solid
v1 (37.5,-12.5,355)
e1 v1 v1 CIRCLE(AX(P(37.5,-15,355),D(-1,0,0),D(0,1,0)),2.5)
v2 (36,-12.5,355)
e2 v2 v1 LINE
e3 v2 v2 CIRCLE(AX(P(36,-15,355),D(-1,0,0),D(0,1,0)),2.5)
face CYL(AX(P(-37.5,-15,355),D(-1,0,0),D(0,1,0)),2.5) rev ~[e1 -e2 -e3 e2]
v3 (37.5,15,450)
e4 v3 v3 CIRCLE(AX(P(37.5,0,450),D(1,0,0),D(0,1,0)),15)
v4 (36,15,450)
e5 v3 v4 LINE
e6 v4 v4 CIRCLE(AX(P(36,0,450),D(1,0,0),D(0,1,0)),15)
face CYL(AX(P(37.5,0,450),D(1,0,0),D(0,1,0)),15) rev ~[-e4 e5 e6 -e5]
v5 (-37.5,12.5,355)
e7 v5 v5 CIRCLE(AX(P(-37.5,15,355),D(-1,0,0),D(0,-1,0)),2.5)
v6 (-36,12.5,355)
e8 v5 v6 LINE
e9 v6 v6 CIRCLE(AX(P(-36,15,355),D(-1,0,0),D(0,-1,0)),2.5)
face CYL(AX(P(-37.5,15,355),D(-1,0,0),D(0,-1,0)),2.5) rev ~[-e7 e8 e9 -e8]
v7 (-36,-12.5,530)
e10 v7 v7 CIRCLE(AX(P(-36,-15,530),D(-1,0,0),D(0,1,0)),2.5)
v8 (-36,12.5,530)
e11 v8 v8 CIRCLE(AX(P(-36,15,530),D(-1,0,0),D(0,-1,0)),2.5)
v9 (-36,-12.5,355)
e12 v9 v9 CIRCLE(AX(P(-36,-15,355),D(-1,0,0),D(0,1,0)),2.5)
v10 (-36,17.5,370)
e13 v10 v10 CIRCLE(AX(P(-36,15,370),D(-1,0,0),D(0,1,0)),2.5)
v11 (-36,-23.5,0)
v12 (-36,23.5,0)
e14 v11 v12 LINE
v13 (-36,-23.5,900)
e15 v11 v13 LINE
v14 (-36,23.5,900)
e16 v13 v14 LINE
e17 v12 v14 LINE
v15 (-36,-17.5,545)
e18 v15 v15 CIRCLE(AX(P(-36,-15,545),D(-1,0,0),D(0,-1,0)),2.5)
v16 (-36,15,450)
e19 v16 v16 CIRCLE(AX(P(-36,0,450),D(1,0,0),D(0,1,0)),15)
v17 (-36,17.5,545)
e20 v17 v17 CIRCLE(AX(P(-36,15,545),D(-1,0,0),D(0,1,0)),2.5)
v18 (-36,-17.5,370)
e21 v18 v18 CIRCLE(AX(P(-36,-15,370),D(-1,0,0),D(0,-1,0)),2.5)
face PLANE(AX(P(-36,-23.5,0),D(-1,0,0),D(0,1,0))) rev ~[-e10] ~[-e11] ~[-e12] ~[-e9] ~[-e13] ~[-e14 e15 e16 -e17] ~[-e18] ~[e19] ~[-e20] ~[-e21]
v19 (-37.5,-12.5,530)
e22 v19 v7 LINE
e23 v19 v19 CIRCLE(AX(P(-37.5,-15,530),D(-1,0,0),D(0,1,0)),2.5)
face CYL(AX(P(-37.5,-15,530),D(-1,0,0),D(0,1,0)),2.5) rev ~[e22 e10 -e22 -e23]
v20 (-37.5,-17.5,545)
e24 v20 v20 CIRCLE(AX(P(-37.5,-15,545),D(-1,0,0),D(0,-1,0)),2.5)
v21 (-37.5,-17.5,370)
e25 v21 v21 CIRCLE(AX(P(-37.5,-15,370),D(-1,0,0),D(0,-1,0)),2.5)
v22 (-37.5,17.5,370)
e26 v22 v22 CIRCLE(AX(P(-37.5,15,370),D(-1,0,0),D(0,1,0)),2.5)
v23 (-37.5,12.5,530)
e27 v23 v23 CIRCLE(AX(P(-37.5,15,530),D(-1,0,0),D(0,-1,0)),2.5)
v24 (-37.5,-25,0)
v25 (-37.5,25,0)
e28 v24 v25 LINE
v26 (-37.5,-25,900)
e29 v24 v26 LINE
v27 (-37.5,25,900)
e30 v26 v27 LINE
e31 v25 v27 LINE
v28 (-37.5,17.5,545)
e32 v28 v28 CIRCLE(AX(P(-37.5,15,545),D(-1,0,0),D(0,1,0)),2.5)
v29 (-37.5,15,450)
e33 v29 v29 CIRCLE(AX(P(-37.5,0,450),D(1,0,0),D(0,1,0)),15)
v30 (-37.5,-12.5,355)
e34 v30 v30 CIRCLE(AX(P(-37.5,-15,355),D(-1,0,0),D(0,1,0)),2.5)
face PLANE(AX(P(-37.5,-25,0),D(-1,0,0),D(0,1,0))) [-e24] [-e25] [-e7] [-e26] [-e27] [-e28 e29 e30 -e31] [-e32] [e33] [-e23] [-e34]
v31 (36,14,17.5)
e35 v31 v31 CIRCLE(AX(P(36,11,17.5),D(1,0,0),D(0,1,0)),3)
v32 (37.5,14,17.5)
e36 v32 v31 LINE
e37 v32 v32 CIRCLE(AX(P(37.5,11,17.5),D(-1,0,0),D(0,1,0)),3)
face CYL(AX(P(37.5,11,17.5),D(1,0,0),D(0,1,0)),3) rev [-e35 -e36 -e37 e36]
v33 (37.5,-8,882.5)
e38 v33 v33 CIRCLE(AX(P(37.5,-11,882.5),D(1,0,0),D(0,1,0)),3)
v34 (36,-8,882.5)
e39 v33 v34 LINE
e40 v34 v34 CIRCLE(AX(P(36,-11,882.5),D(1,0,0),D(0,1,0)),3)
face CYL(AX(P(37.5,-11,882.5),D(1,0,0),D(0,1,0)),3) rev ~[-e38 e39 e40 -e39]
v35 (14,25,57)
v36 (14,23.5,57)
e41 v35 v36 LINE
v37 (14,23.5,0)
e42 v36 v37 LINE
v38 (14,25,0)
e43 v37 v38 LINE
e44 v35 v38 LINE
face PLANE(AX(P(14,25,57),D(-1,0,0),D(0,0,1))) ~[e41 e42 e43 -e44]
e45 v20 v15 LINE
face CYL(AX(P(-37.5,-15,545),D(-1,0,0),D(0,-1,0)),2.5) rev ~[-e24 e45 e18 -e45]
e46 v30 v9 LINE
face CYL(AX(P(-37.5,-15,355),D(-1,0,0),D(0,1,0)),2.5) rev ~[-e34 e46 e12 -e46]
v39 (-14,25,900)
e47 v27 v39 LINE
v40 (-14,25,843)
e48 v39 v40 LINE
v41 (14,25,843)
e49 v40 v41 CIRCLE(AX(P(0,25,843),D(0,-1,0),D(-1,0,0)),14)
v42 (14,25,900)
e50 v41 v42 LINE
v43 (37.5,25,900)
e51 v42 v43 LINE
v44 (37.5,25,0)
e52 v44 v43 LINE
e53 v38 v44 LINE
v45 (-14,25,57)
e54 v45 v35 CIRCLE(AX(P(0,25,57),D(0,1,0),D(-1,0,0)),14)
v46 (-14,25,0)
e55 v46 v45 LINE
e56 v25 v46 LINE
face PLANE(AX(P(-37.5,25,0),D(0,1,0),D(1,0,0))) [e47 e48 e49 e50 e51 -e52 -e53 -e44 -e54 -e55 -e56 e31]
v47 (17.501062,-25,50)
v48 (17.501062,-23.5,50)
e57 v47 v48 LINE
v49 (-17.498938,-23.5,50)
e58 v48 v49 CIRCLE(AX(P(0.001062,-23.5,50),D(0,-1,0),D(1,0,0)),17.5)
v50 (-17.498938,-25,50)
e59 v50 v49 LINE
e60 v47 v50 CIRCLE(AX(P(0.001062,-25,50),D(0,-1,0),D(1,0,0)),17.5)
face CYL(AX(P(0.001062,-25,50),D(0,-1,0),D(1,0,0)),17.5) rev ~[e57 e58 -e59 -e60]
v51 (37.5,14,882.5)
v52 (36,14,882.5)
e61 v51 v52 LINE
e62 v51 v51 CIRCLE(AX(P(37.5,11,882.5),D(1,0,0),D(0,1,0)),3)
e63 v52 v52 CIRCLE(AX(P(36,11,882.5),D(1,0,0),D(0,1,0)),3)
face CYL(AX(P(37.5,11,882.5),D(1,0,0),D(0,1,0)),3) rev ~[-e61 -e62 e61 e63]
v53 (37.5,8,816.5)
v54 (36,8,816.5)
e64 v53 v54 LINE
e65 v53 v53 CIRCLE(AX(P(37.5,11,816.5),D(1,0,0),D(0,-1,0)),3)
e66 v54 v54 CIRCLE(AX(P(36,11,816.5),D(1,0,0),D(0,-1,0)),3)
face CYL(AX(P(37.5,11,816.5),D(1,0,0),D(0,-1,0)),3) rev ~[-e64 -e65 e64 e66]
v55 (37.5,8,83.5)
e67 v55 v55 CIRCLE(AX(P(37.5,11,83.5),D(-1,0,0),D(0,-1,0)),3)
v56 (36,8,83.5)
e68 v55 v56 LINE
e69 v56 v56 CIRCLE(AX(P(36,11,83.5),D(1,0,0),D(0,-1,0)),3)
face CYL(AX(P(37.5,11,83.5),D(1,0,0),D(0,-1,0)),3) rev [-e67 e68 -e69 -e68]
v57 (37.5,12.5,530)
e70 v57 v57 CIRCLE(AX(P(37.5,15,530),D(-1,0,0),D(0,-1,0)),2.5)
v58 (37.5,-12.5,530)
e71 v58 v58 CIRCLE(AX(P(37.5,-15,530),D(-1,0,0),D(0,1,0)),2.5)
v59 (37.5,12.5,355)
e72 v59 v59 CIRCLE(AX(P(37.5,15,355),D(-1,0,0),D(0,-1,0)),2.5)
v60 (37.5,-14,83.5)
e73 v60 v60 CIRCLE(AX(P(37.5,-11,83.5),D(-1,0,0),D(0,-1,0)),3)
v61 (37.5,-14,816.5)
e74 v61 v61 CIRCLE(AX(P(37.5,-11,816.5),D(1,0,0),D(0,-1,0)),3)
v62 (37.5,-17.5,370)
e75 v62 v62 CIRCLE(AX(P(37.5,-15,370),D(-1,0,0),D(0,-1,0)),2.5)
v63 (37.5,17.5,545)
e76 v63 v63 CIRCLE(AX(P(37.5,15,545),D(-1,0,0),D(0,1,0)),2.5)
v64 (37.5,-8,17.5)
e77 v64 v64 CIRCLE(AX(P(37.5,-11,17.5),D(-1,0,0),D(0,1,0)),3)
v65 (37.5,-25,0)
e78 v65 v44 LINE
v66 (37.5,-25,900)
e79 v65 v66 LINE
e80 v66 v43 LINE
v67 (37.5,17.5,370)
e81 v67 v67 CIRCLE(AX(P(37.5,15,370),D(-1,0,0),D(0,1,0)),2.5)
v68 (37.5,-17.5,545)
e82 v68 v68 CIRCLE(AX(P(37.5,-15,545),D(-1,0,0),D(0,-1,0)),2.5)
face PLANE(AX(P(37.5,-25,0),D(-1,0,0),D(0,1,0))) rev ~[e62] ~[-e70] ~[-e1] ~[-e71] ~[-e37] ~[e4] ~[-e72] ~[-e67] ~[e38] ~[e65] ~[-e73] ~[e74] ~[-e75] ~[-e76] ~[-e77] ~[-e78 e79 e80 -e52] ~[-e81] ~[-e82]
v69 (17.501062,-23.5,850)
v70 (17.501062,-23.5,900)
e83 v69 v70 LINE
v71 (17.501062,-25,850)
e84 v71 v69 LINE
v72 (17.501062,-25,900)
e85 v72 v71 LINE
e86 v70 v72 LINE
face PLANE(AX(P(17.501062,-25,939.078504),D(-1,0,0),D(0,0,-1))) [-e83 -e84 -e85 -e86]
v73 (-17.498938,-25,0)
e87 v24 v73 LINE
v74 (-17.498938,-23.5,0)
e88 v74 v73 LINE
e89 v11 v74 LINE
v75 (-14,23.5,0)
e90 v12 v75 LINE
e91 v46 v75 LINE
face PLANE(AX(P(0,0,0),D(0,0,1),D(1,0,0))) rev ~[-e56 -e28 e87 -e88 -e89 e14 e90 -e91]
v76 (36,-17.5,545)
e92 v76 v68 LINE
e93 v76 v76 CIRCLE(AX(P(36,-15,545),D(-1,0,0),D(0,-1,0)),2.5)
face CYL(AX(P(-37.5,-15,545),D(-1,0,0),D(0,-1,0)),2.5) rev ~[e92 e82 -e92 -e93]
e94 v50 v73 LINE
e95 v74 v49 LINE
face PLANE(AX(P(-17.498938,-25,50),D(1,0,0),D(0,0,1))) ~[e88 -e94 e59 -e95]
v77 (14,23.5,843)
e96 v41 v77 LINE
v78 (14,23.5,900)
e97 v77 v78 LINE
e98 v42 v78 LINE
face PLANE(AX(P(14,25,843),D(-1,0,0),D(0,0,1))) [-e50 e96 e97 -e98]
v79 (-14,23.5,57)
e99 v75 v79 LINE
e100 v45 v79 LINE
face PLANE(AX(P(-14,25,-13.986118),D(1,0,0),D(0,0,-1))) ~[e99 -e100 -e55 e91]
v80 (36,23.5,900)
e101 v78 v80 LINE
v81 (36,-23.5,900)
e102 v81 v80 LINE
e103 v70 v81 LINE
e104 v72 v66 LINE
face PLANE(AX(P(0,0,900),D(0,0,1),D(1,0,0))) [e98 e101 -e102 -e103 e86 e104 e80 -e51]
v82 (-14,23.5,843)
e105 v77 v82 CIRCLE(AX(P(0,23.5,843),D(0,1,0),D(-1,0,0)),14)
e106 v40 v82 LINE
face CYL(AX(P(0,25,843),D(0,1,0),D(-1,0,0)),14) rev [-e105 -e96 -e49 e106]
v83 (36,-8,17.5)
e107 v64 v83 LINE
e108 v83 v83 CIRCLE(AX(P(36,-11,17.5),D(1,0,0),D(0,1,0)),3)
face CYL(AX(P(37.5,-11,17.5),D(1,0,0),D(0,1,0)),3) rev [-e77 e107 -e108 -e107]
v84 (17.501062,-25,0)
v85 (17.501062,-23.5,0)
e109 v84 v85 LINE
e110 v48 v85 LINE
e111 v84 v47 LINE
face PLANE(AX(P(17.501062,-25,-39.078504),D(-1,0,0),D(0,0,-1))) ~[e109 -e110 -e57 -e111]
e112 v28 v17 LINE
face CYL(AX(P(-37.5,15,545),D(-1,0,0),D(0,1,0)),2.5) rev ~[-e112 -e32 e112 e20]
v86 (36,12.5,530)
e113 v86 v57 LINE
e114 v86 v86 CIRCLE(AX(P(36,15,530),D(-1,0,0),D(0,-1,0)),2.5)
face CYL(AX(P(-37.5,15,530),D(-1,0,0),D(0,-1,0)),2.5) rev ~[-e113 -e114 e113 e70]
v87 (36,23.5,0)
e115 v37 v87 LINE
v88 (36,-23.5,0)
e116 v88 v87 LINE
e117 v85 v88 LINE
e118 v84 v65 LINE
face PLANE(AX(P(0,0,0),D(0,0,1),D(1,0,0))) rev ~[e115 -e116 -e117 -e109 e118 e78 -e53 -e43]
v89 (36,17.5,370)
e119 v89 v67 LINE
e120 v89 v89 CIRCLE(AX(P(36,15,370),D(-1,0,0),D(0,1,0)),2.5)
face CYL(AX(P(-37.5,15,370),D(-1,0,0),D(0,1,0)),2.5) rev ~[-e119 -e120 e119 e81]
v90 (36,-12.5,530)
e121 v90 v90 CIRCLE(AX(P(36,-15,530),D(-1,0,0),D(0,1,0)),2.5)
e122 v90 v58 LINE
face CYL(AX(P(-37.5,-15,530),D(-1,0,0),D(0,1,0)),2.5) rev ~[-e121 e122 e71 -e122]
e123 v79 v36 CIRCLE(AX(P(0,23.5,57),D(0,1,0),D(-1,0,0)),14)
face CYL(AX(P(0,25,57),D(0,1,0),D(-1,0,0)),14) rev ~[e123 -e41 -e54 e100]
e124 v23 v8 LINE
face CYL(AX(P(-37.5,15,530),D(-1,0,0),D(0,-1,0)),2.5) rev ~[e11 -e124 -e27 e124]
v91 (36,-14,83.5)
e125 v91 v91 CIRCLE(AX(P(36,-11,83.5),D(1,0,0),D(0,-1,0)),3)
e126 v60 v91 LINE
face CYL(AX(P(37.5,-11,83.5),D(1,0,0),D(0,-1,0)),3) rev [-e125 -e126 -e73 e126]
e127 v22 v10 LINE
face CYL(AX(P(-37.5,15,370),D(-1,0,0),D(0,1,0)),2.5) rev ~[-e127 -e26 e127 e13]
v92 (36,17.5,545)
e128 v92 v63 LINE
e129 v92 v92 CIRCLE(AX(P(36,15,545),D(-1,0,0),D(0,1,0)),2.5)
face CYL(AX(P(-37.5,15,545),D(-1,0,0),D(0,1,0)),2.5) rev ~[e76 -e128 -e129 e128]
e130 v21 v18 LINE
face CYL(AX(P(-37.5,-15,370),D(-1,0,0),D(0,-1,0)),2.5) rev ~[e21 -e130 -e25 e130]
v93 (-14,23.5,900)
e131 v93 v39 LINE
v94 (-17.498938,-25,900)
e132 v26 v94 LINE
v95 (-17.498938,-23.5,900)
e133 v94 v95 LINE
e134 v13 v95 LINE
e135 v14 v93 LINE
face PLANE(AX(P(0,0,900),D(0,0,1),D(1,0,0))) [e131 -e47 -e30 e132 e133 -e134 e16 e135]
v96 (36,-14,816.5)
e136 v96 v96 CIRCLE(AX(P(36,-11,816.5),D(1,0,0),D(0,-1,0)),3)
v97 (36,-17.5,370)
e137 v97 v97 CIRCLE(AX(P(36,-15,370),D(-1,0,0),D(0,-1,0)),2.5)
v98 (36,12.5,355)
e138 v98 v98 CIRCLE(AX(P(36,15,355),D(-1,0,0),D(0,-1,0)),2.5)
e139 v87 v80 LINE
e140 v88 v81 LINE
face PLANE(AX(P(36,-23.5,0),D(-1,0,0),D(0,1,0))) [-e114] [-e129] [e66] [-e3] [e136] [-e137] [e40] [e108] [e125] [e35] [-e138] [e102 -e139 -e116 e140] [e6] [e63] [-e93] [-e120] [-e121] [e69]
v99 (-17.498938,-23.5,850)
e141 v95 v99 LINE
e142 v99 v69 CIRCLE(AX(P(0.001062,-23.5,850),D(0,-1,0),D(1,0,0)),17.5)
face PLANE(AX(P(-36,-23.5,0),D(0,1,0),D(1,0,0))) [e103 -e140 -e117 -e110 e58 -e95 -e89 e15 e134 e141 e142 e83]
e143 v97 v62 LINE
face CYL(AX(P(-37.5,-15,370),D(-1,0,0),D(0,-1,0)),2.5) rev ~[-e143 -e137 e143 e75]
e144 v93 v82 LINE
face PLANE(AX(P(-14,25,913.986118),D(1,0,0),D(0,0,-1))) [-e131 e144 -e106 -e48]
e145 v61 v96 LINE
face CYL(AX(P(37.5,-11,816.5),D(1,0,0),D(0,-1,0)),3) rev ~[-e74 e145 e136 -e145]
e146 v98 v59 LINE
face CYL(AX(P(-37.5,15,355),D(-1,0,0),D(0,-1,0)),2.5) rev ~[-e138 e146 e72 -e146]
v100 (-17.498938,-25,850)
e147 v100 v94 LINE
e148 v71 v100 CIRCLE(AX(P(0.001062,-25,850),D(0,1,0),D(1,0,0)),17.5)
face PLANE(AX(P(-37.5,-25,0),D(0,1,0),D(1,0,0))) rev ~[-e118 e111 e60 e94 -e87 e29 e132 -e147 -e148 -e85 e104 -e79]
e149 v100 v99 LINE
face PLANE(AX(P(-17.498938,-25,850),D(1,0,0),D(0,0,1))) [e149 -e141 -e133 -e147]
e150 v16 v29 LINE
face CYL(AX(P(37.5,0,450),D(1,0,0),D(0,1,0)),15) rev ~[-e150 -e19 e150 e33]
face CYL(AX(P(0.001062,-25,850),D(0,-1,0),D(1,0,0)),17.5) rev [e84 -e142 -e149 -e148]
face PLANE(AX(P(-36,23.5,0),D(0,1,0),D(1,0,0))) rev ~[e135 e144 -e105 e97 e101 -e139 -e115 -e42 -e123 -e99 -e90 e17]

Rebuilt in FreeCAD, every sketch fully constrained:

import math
import FreeCAD as App
import Part
import Sketcher
Q = App.Units.Quantity

doc = App.newDocument("Part")
body = doc.addObject("PartDesign::Body", "Body")

# Sketch on XY plane
sketch1 = body.newObject("Sketcher::SketchObject", "Sketch")
sketch1.AttachmentSupport = (doc.getObject("XY_Plane"), [""])
sketch1.MapMode = "FlatFace"
sketch1.addGeometry([
    Part.LineSegment(App.Vector(-38, 25, 0), App.Vector(-38, -25, 0)),  # 0
    Part.LineSegment(App.Vector(-38, -25, 0), App.Vector(38, -25, 0)),  # 1
    Part.LineSegment(App.Vector(38, -25, 0), App.Vector(38, 25, 0)),  # 2
    Part.LineSegment(App.Vector(38, 25, 0), App.Vector(-38, 25, 0)),  # 3
    Part.LineSegment(App.Vector(36, -24, 0), App.Vector(-36, -24, 0)),  # 4
    Part.LineSegment(App.Vector(-36, -24, 0), App.Vector(-36, 24, 0)),  # 5
    Part.LineSegment(App.Vector(-36, 24, 0), App.Vector(36, 24, 0)),  # 6
    Part.LineSegment(App.Vector(36, 24, 0), App.Vector(36, -24, 0)),  # 7
], False)
sketch1.addConstraint([
    Sketcher.Constraint("Coincident", 0, 2, 1, 1),
    Sketcher.Constraint("Coincident", 1, 2, 2, 1),
    Sketcher.Constraint("Coincident", 2, 2, 3, 1),
    Sketcher.Constraint("Coincident", 3, 2, 0, 1),
    Sketcher.Constraint("Coincident", 4, 2, 5, 1),
    Sketcher.Constraint("Coincident", 5, 2, 6, 1),
    Sketcher.Constraint("Coincident", 6, 2, 7, 1),
    Sketcher.Constraint("Coincident", 7, 2, 4, 1),
    Sketcher.Constraint("Vertical", 0),
    Sketcher.Constraint("Horizontal", 1),
    Sketcher.Constraint("Vertical", 2),
    Sketcher.Constraint("Horizontal", 3),
    Sketcher.Constraint("Horizontal", 4),
    Sketcher.Constraint("Vertical", 5),
    Sketcher.Constraint("Horizontal", 6),
    Sketcher.Constraint("Vertical", 7),
    Sketcher.Constraint("Symmetric", 0, 2, 2, 2, -1, 1),
    Sketcher.Constraint("Symmetric", 4, 2, 6, 2, -1, 1),
    Sketcher.Constraint("DistanceX", 1, 1, 1, 2, Q("75 mm")),
    Sketcher.Constraint("DistanceX", 4, 2, 4, 1, Q("72 mm")),
    Sketcher.Constraint("DistanceY", 0, 2, 0, 1, Q("50 mm")),
    Sketcher.Constraint("DistanceY", 5, 1, 5, 2, Q("47 mm")),
])
pad1 = body.newObject("PartDesign::Pad", "Pad")
pad1.Profile = sketch1
pad1.Length = 900

# Sketch on YZ plane
sketch2 = body.newObject("Sketcher::SketchObject", "Sketch001")
sketch2.AttachmentSupport = (doc.getObject("YZ_Plane"), [""])
sketch2.MapMode = "FlatFace"
sketch2.AttachmentOffset = App.Placement(App.Vector(0, 0, 37.5), App.Rotation())
sketch2.addGeometry(Part.Circle(App.Vector(0, 450, 0), App.Vector(0, 0, 1), 15), False)
sketch2.addConstraint([
    Sketcher.Constraint("PointOnObject", 0, 3, -2),
    Sketcher.Constraint("Diameter", 0, Q("30 mm")),
    Sketcher.Constraint("DistanceY", -1, 1, 0, 3, Q("450 mm")),
])
pocket1 = body.newObject("PartDesign::Pocket", "Pocket")
pocket1.Profile = sketch2
pocket1.Length = 59

# Sketch on XZ plane
sketch3 = body.newObject("Sketcher::SketchObject", "Sketch002")
sketch3.AttachmentSupport = (doc.getObject("XZ_Plane"), [""])
sketch3.MapMode = "FlatFace"
sketch3.AttachmentOffset = App.Placement(App.Vector(0, 0, -25), App.Rotation())
sketch3.addGeometry([
    Part.LineSegment(App.Vector(14, 914, 0), App.Vector(14, 843, 0)),
    Part.ArcOfCircle(Part.Circle(App.Vector(0, 843, 0), App.Vector(0, 0, 1), 14), math.radians(180), math.radians(360)),
    Part.LineSegment(App.Vector(-14, 843, 0), App.Vector(-14, 914, 0)),
    Part.ArcOfCircle(Part.Circle(App.Vector(0, 914, 0), App.Vector(0, 0, 1), 14), math.radians(0), math.radians(180)),
], False)
sketch3.addConstraint([
    Sketcher.Constraint("Tangent", 0, 2, 1, 2),
    Sketcher.Constraint("Tangent", 1, 1, 2, 1),
    Sketcher.Constraint("Tangent", 2, 2, 3, 2),
    Sketcher.Constraint("Tangent", 3, 1, 0, 1),
    Sketcher.Constraint("Vertical", 0),
    Sketcher.Constraint("Vertical", 2),
    Sketcher.Constraint("PointOnObject", 1, 3, -2),
    Sketcher.Constraint("Radius", 1, Q("14 mm")),
    Sketcher.Constraint("DistanceY", -1, 1, 1, 3, Q("843 mm")),
    Sketcher.Constraint("DistanceY", 0, 2, 0, 1, Q("70.986118 mm")),
])
pocket2 = body.newObject("PartDesign::Pocket", "Pocket001")
pocket2.Profile = sketch3
pocket2.Length = 10
pocket2.Reversed = True

# Sketch on XZ plane
sketch4 = body.newObject("Sketcher::SketchObject", "Sketch003")
sketch4.AttachmentSupport = (doc.getObject("XZ_Plane"), [""])
sketch4.MapMode = "FlatFace"
sketch4.AttachmentOffset = App.Placement(App.Vector(0, 0, 25), App.Rotation())
sketch4.addGeometry([
    Part.LineSegment(App.Vector(-17, 939, 0), App.Vector(-17, 850, 0)),
    Part.ArcOfCircle(Part.Circle(App.Vector(0, 850, 0), App.Vector(0, 0, 1), 18), math.radians(180), math.radians(360)),
    Part.LineSegment(App.Vector(18, 850, 0), App.Vector(18, 939, 0)),
    Part.ArcOfCircle(Part.Circle(App.Vector(0, 939, 0), App.Vector(0, 0, 1), 18), math.radians(0), math.radians(180)),
], False)
sketch4.addConstraint([
    Sketcher.Constraint("Tangent", 0, 2, 1, 1),
    Sketcher.Constraint("Tangent", 1, 2, 2, 1),
    Sketcher.Constraint("Tangent", 2, 2, 3, 1),
    Sketcher.Constraint("Tangent", 3, 2, 0, 1),
    Sketcher.Constraint("Vertical", 0),
    Sketcher.Constraint("Vertical", 2),
    Sketcher.Constraint("Radius", 1, Q("17.5 mm")),
    Sketcher.Constraint("DistanceY", -1, 1, 1, 3, Q("850 mm")),
    Sketcher.Constraint("DistanceY", 0, 2, 0, 1, Q("89.078504 mm")),
    Sketcher.Constraint("DistanceX", -1, 1, 1, 3, Q("0.001062 mm")),
])
pocket3 = body.newObject("PartDesign::Pocket", "Pocket002")
pocket3.Profile = sketch4
pocket3.Length = 10

# Sketch on YZ plane
sketch5 = body.newObject("Sketcher::SketchObject", "Sketch004")
sketch5.AttachmentSupport = (doc.getObject("YZ_Plane"), [""])
sketch5.MapMode = "FlatFace"
sketch5.AttachmentOffset = App.Placement(App.Vector(0, 0, 37.5), App.Rotation())
sketch5.addGeometry([
    Part.Circle(App.Vector(11, 882.5, 0), App.Vector(0, 0, 1), 3),
    Part.Circle(App.Vector(-11, 882.5, 0), App.Vector(0, 0, 1), 3),
    Part.Circle(App.Vector(-11, 816.5, 0), App.Vector(0, 0, 1), 3),
    Part.Circle(App.Vector(11, 816.5, 0), App.Vector(0, 0, 1), 3),
], False)
sketch5.addConstraint([
    Sketcher.Constraint("Equal", 0, 1),
    Sketcher.Constraint("Equal", 1, 2),
    Sketcher.Constraint("Equal", 2, 3),
    Sketcher.Constraint("Symmetric", 0, 3, 1, 3, -2),
    Sketcher.Constraint("Symmetric", 2, 3, 3, 3, -2),
    Sketcher.Constraint("Vertical", 1, 3, 2, 3),
    Sketcher.Constraint("Diameter", 0, Q("6 mm")),
    Sketcher.Constraint("DistanceX", -1, 1, 0, 3, Q("11 mm")),
    Sketcher.Constraint("DistanceY", 2, 3, 1, 3, Q("66 mm")),
    Sketcher.Constraint("DistanceY", -1, 1, 0, 3, Q("882.5 mm")),
])
pocket4 = body.newObject("PartDesign::Pocket", "Pocket003")
pocket4.Profile = sketch5
pocket4.Length = 55
doc.recompute()

datumplane = body.newObject("PartDesign::Plane", "DatumPlane")
datumplane.AttachmentSupport = (doc.getObject("XY_Plane"), [""])
datumplane.MapMode = "FlatFace"
datumplane.AttachmentOffset = App.Placement(App.Vector(0, 0, 450), App.Rotation())
mirrored = body.newObject("PartDesign::Mirrored", "Mirrored")
mirrored.Originals = [pocket2, pocket3, pocket4]
mirrored.MirrorPlane = (datumplane, [""])
body.Tip = mirrored

# Sketch on YZ plane
sketch6 = body.newObject("Sketcher::SketchObject", "Sketch005")
sketch6.AttachmentSupport = (doc.getObject("YZ_Plane"), [""])
sketch6.MapMode = "FlatFace"
sketch6.AttachmentOffset = App.Placement(App.Vector(0, 0, -37.5), App.Rotation())
sketch6.addGeometry([
    Part.Circle(App.Vector(15, 355, 0), App.Vector(0, 0, 1), 2.5),  # 0
    Part.Circle(App.Vector(15, 370, 0), App.Vector(0, 0, 1), 2.5),  # 1
    Part.Circle(App.Vector(-15, 370, 0), App.Vector(0, 0, 1), 2.5),  # 2
    Part.Circle(App.Vector(-15, 355, 0), App.Vector(0, 0, 1), 2.5),  # 3
    Part.Circle(App.Vector(-15, 545, 0), App.Vector(0, 0, 1), 2.5),  # 4
    Part.Circle(App.Vector(-15, 530, 0), App.Vector(0, 0, 1), 2.5),  # 5
    Part.Circle(App.Vector(15, 530, 0), App.Vector(0, 0, 1), 2.5),  # 6
    Part.Circle(App.Vector(15, 545, 0), App.Vector(0, 0, 1), 2.5),  # 7
], False)
sketch6.addConstraint([
    Sketcher.Constraint("Equal", 0, 1),
    Sketcher.Constraint("Equal", 1, 2),
    Sketcher.Constraint("Equal", 2, 3),
    Sketcher.Constraint("Equal", 3, 4),
    Sketcher.Constraint("Equal", 4, 5),
    Sketcher.Constraint("Equal", 5, 6),
    Sketcher.Constraint("Equal", 6, 7),
    Sketcher.Constraint("Symmetric", 1, 3, 2, 3, -2),
    Sketcher.Constraint("Symmetric", 0, 3, 3, 3, -2),
    Sketcher.Constraint("Symmetric", 5, 3, 6, 3, -2),
    Sketcher.Constraint("Symmetric", 4, 3, 7, 3, -2),
    Sketcher.Constraint("Vertical", 0, 3, 1, 3),
    Sketcher.Constraint("Vertical", 3, 3, 4, 3),
    Sketcher.Constraint("Vertical", 4, 3, 5, 3),
    Sketcher.Constraint("Diameter", 0, Q("5 mm")),
    Sketcher.Constraint("DistanceX", -1, 1, 0, 3, Q("15 mm")),
    Sketcher.Constraint("DistanceY", -1, 1, 0, 3, Q("355 mm")),
    Sketcher.Constraint("DistanceY", -1, 1, 1, 3, Q("370 mm")),
    Sketcher.Constraint("DistanceY", -1, 1, 4, 3, Q("545 mm")),
    Sketcher.Constraint("DistanceY", -1, 1, 5, 3, Q("530 mm")),
])
pocket5 = body.newObject("PartDesign::Pocket", "Pocket004")
pocket5.Profile = sketch6
pocket5.Type = "ThroughAll"
pocket5.Reversed = True

# Sketch on YZ plane
sketch7 = body.newObject("Sketcher::SketchObject", "Sketch006")
sketch7.AttachmentSupport = (doc.getObject("YZ_Plane"), [""])
sketch7.MapMode = "FlatFace"
sketch7.AttachmentOffset = App.Placement(App.Vector(0, 0, 37.5), App.Rotation())
sketch7.addGeometry(Part.Circle(App.Vector(0, 450, 0), App.Vector(0, 0, 1), 15), False)
sketch7.addConstraint([
    Sketcher.Constraint("PointOnObject", 0, 3, -2),
    Sketcher.Constraint("Diameter", 0, Q("30 mm")),
    Sketcher.Constraint("DistanceY", -1, 1, 0, 3, Q("450 mm")),
])
pocket6 = body.newObject("PartDesign::Pocket", "Pocket005")
pocket6.Profile = sketch7
pocket6.Length = 97

doc.recompute()
